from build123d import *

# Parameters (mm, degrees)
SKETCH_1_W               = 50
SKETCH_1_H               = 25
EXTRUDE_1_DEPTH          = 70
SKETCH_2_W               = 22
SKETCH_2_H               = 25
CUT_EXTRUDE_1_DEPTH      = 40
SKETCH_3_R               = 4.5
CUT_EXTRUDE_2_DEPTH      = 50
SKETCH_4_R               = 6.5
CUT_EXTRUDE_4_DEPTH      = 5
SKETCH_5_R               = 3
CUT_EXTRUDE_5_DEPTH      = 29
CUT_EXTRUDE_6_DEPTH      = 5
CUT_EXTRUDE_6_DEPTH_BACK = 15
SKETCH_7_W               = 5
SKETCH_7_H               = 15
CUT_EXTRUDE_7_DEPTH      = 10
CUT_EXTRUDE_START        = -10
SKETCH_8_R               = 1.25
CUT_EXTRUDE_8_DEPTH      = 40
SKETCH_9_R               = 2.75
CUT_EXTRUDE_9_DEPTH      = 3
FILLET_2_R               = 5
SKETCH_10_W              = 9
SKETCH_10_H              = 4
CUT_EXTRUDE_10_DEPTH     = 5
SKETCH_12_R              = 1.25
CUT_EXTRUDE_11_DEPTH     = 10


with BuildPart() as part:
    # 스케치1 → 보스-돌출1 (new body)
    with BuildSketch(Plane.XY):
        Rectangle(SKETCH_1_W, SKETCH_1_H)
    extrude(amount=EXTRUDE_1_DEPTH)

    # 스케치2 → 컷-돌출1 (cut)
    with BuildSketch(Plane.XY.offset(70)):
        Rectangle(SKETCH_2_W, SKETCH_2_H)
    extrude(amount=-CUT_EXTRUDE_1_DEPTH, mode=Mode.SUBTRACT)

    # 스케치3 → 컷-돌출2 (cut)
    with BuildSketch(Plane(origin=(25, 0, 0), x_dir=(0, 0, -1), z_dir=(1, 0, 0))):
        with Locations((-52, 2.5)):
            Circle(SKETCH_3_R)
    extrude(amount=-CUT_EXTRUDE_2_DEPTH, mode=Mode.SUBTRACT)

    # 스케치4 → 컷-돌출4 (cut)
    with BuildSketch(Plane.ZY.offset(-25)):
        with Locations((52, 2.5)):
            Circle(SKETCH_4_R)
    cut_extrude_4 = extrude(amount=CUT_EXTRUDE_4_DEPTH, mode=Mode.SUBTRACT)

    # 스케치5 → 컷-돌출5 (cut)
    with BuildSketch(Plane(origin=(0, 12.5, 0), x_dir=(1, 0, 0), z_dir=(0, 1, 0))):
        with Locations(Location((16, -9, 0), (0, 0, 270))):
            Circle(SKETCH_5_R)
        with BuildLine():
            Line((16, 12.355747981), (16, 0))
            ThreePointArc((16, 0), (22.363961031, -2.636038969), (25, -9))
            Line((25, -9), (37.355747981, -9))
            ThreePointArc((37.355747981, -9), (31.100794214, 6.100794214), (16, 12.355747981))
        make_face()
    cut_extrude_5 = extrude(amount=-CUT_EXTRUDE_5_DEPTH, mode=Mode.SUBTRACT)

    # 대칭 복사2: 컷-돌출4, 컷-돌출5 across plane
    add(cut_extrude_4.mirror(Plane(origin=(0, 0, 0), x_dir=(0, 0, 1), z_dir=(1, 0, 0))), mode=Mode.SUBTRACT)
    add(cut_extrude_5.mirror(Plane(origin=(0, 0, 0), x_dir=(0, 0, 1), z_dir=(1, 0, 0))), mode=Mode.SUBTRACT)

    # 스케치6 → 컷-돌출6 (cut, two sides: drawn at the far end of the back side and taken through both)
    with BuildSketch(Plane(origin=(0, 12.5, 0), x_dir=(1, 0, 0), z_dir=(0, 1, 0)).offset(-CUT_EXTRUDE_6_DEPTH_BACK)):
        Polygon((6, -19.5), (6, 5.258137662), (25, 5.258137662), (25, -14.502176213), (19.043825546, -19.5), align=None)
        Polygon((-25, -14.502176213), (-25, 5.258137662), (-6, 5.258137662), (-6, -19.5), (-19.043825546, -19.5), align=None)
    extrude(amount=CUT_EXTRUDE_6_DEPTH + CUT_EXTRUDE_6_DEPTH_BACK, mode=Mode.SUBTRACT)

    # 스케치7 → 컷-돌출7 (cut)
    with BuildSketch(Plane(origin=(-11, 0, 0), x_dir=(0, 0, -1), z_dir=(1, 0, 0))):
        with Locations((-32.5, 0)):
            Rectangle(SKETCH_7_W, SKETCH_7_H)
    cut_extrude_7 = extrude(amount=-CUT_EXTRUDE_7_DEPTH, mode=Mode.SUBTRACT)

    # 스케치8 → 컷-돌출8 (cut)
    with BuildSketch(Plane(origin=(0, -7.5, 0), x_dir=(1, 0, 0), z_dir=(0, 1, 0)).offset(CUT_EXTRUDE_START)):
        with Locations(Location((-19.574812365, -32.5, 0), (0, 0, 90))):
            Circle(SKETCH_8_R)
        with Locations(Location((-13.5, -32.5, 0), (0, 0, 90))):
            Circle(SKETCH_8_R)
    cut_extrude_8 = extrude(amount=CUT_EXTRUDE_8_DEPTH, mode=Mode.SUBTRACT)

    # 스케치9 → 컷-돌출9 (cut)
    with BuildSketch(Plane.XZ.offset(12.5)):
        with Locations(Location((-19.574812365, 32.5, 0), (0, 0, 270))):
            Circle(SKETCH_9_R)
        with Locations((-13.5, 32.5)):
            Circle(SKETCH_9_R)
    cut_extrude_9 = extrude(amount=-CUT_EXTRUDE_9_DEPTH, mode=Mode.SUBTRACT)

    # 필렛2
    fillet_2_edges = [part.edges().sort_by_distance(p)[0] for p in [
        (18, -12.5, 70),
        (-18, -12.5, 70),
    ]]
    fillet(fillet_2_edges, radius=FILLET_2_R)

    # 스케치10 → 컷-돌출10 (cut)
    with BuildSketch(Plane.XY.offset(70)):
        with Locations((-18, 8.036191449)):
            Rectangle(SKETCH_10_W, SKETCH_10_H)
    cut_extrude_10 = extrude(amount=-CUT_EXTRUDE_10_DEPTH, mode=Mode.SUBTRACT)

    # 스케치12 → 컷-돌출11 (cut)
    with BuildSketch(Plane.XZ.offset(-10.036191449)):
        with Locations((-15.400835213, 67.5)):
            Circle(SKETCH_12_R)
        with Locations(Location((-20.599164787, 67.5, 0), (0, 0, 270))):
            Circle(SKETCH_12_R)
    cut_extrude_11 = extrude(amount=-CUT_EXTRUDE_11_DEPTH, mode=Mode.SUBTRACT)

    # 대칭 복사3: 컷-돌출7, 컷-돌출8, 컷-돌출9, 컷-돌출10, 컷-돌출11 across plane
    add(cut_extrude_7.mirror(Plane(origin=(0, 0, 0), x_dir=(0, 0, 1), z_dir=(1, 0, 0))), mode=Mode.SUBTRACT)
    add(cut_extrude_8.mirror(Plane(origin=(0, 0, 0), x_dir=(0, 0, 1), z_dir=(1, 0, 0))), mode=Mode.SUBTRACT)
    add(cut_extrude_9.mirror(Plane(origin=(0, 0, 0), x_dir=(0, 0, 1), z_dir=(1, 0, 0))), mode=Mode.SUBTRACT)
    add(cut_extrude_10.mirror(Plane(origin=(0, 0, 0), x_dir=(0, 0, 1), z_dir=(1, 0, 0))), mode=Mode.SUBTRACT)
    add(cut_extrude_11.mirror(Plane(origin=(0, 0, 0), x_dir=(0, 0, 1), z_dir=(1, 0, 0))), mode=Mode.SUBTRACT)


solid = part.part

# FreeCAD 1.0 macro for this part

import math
import FreeCAD as App
import Part
import Sketcher
Q = App.Units.Quantity


def edges_at(feature, points):
    """Names of the edges that pass closest to the given points."""
    edges = feature.Shape.Edges
    near = lambda p: min(range(len(edges)), key=lambda i: edges[i].distToShape(Part.Vertex(*p))[0])
    return sorted({f"Edge{near(p) + 1}" for p in points})


def add_polygon(sketch, points):
    """Adds a closed chain of lines whose ends are joined by coincident constraints."""
    first, n = sketch.GeometryCount, len(points)
    for a, b in zip(points, points[1:] + points[:1]):
        sketch.addGeometry(Part.LineSegment(App.Vector(*a, 0), App.Vector(*b, 0)), False)
    for i in range(n):
        sketch.addConstraint(Sketcher.Constraint("Coincident", first + i, 2, first + (i + 1) % n, 1))

doc = App.newDocument("Part")
body = doc.addObject("PartDesign::Body", "Body")

# Sketch on XY plane
sketch1 = body.newObject("Sketcher::SketchObject", "Sketch")
sketch1.AttachmentSupport = (doc.getObject("XY_Plane"), [""])
sketch1.MapMode = "FlatFace"
add_polygon(sketch1, [(-25, 12), (-25, -12), (25, -12), (25, 12)])  # lines 0-3
sketch1.addConstraint([
    Sketcher.Constraint("Vertical", 0),
    Sketcher.Constraint("Horizontal", 1),
    Sketcher.Constraint("Vertical", 2),
    Sketcher.Constraint("Horizontal", 3),
    Sketcher.Constraint("Symmetric", 0, 2, 2, 2, -1, 1),
    Sketcher.Constraint("DistanceX", 1, 1, 1, 2, Q("50 mm")),
    Sketcher.Constraint("DistanceY", 0, 2, 0, 1, Q("25 mm")),
])
pad1 = body.newObject("PartDesign::Pad", "Pad")
pad1.Profile = sketch1
pad1.Length = 70

# Sketch on XY plane
sketch2 = body.newObject("Sketcher::SketchObject", "Sketch001")
sketch2.AttachmentSupport = (doc.getObject("XY_Plane"), [""])
sketch2.MapMode = "FlatFace"
sketch2.AttachmentOffset = App.Placement(App.Vector(0, 0, 70), App.Rotation())
add_polygon(sketch2, [(-11, 12), (-11, -12), (11, -12), (11, 12)])  # lines 0-3
sketch2.addConstraint([
    Sketcher.Constraint("Vertical", 0),
    Sketcher.Constraint("Horizontal", 1),
    Sketcher.Constraint("Vertical", 2),
    Sketcher.Constraint("Horizontal", 3),
    Sketcher.Constraint("Symmetric", 0, 2, 2, 2, -1, 1),
    Sketcher.Constraint("DistanceX", 1, 1, 1, 2, Q("22 mm")),
    Sketcher.Constraint("DistanceY", 0, 2, 0, 1, Q("25 mm")),
])
pocket1 = body.newObject("PartDesign::Pocket", "Pocket")
pocket1.Profile = sketch2
pocket1.Length = 40

# Sketch on YZ plane
sketch3 = body.newObject("Sketcher::SketchObject", "Sketch002")
sketch3.AttachmentSupport = (doc.getObject("YZ_Plane"), [""])
sketch3.MapMode = "FlatFace"
sketch3.AttachmentOffset = App.Placement(App.Vector(0, 0, 25), App.Rotation())
sketch3.addGeometry(Part.Circle(App.Vector(2.5, 52, 0), App.Vector(0, 0, 1), 4.5), False)
sketch3.addConstraint([
    Sketcher.Constraint("Diameter", 0, Q("9 mm")),
    Sketcher.Constraint("DistanceY", -1, 1, 0, 3, Q("52 mm")),
    Sketcher.Constraint("DistanceX", -1, 1, 0, 3, Q("2.5 mm")),
])
pocket2 = body.newObject("PartDesign::Pocket", "Pocket001")
pocket2.Profile = sketch3
pocket2.Length = 50

# Sketch on YZ plane
sketch4 = body.newObject("Sketcher::SketchObject", "Sketch003")
sketch4.AttachmentSupport = (doc.getObject("YZ_Plane"), [""])
sketch4.MapMode = "FlatFace"
sketch4.AttachmentOffset = App.Placement(App.Vector(0, 0, 25), App.Rotation())
sketch4.addGeometry(Part.Circle(App.Vector(2, 52, 0), App.Vector(0, 0, 1), 6), False)
sketch4.addConstraint([
    Sketcher.Constraint("Diameter", 0, Q("13 mm")),
    Sketcher.Constraint("DistanceY", -1, 1, 0, 3, Q("52 mm")),
    Sketcher.Constraint("DistanceX", -1, 1, 0, 3, Q("2.5 mm")),
])
pocket3 = body.newObject("PartDesign::Pocket", "Pocket002")
pocket3.Profile = sketch4
pocket3.Length = 5

# Sketch on XZ plane
sketch5 = body.newObject("Sketcher::SketchObject", "Sketch004")
sketch5.AttachmentSupport = (doc.getObject("XZ_Plane"), [""])
sketch5.MapMode = "FlatFace"
sketch5.AttachmentOffset = App.Placement(App.Vector(0, 0, -12.5), App.Rotation())
sketch5.addGeometry([
    Part.Circle(App.Vector(16, 9, 0), App.Vector(0, 0, 1), 3),  # 0
    Part.LineSegment(App.Vector(16, -12.4, 0), App.Vector(16, 0, 0)),  # 1
    Part.ArcOfCircle(Part.Circle(App.Vector(16, 9, 0), App.Vector(0, 0, 1), 9), math.radians(-90), math.radians(0)),  # 2
    Part.LineSegment(App.Vector(25, 9, 0), App.Vector(37.4, 9, 0)),  # 3
    Part.ArcOfCircle(Part.Circle(App.Vector(16, 9, 0), App.Vector(0, 0, 1), 21.4), math.radians(-90), math.radians(0)),  # 4
], False)
sketch5.addConstraint([
    Sketcher.Constraint("Coincident", 1, 2, 2, 1),
    Sketcher.Constraint("Coincident", 2, 2, 3, 1),
    Sketcher.Constraint("Coincident", 3, 2, 4, 2),
    Sketcher.Constraint("Coincident", 4, 1, 1, 1),
    Sketcher.Constraint("Vertical", 1),
    Sketcher.Constraint("Horizontal", 3),
    Sketcher.Constraint("Coincident", 2, 3, 0, 3),
    Sketcher.Constraint("Coincident", 4, 3, 0, 3),
    Sketcher.Constraint("PointOnObject", 1, 2, -1),
    Sketcher.Constraint("Horizontal", 4, 3, 2, 2),
    Sketcher.Constraint("Vertical", 4, 3, 1, 2),
    Sketcher.Constraint("Diameter", 0, Q("6 mm")),
    Sketcher.Constraint("Radius", 2, Q("9 mm")),
    Sketcher.Constraint("DistanceX", -1, 1, 0, 3, Q("16 mm")),
    Sketcher.Constraint("Radius", 4, Q("21.355748 mm")),
])
pocket4 = body.newObject("PartDesign::Pocket", "Pocket003")
pocket4.Profile = sketch5
pocket4.Length = 29
pocket4.Reversed = True
doc.recompute()

mirrored = body.newObject("PartDesign::Mirrored", "Mirrored")
mirrored.Originals = [pocket3, pocket4]
mirrored.MirrorPlane = (doc.getObject("YZ_Plane"), [""])
body.Tip = mirrored

# Sketch on XZ plane
sketch6 = body.newObject("Sketcher::SketchObject", "Sketch005")
sketch6.AttachmentSupport = (doc.getObject("XZ_Plane"), [""])
sketch6.MapMode = "FlatFace"
sketch6.AttachmentOffset = App.Placement(App.Vector(0, 0, -12.5), App.Rotation())
add_polygon(sketch6, [(6, -5), (6, 20), (19, 20), (25, 15), (25, -5)])  # lines 0-4
add_polygon(sketch6, [(-25, -5), (-25, 15), (-19, 20), (-6, 20), (-6, -5)])  # lines 5-9
sketch6.addConstraint([
    Sketcher.Constraint("Vertical", 0),
    Sketcher.Constraint("Horizontal", 1),
    Sketcher.Constraint("Vertical", 3),
    Sketcher.Constraint("Horizontal", 4),
    Sketcher.Constraint("Vertical", 5),
    Sketcher.Constraint("Horizontal", 7),
    Sketcher.Constraint("Vertical", 8),
    Sketcher.Constraint("Horizontal", 9),
    Sketcher.Constraint("Symmetric", 2, 2, 5, 2, -2),
    Sketcher.Constraint("Symmetric", 1, 2, 6, 2, -2),
    Sketcher.Constraint("Symmetric", 4, 2, 8, 2, -2),
    Sketcher.Constraint("DistanceX", 4, 2, 4, 1, Q("19 mm")),
    Sketcher.Constraint("Angle", 2, Q("-40 deg")),
    Sketcher.Constraint("DistanceX", -1, 1, 0, 2, Q("6 mm")),
    Sketcher.Constraint("DistanceY", -1, 1, 0, 2, Q("19.5 mm")),
    Sketcher.Constraint("DistanceX", 1, 1, 1, 2, Q("13.043826 mm")),
    Sketcher.Constraint("DistanceY", 0, 1, 0, 2, Q("24.758138 mm")),
])
pocket5 = body.newObject("PartDesign::Pocket", "Pocket004")
pocket5.Profile = sketch6
pocket5.Type = "TwoLengths"
pocket5.Length = 5
pocket5.Length2 = 15

# Sketch on YZ plane
sketch7 = body.newObject("Sketcher::SketchObject", "Sketch006")
sketch7.AttachmentSupport = (doc.getObject("YZ_Plane"), [""])
sketch7.MapMode = "FlatFace"
sketch7.AttachmentOffset = App.Placement(App.Vector(0, 0, -11), App.Rotation())
add_polygon(sketch7, [(8, 35), (-8, 35), (-8, 30), (8, 30)])  # lines 0-3
sketch7.addConstraint([
    Sketcher.Constraint("Horizontal", 0),
    Sketcher.Constraint("Vertical", 1),
    Sketcher.Constraint("Horizontal", 2),
    Sketcher.Constraint("Vertical", 3),
    Sketcher.Constraint("DistanceX", 0, 2, 0, 1, Q("15 mm")),
    Sketcher.Constraint("DistanceY", 1, 2, 1, 1, Q("5 mm")),
    Sketcher.Constraint("DistanceY", -1, 1, 0, 2, Q("35 mm")),
    Sketcher.Constraint("DistanceX", 0, 2, -1, 1, Q("7.5 mm")),
])
pocket6 = body.newObject("PartDesign::Pocket", "Pocket005")
pocket6.Profile = sketch7
pocket6.Length = 10

# Sketch on XZ plane
sketch8 = body.newObject("Sketcher::SketchObject", "Sketch007")
sketch8.AttachmentSupport = (doc.getObject("XZ_Plane"), [""])
sketch8.MapMode = "FlatFace"
sketch8.AttachmentOffset = App.Placement(App.Vector(0, 0, 17.5), App.Rotation())
sketch8.addGeometry([
    Part.Circle(App.Vector(-19.6, 32.5, 0), App.Vector(0, 0, 1), 1.2),
    Part.Circle(App.Vector(-13.5, 32.5, 0), App.Vector(0, 0, 1), 1.2),
], False)
sketch8.addConstraint([
    Sketcher.Constraint("Equal", 0, 1),
    Sketcher.Constraint("Horizontal", 0, 3, 1, 3),
    Sketcher.Constraint("Diameter", 0, Q("2.5 mm")),
    Sketcher.Constraint("DistanceY", -1, 1, 0, 3, Q("32.5 mm")),
    Sketcher.Constraint("DistanceX", 1, 3, -1, 1, Q("13.5 mm")),
    Sketcher.Constraint("DistanceX", 0, 3, -1, 1, Q("19.574812 mm")),
])
pocket7 = body.newObject("PartDesign::Pocket", "Pocket006")
pocket7.Profile = sketch8
pocket7.Length = 40

# Sketch on XZ plane
sketch9 = body.newObject("Sketcher::SketchObject", "Sketch008")
sketch9.AttachmentSupport = (doc.getObject("XZ_Plane"), [""])
sketch9.MapMode = "FlatFace"
sketch9.AttachmentOffset = App.Placement(App.Vector(0, 0, 12.5), App.Rotation())
sketch9.addGeometry([
    Part.Circle(App.Vector(-19.6, 32.5, 0), App.Vector(0, 0, 1), 2.8),
    Part.Circle(App.Vector(-13.5, 32.5, 0), App.Vector(0, 0, 1), 2.8),
], False)
sketch9.addConstraint([
    Sketcher.Constraint("Equal", 0, 1),
    Sketcher.Constraint("Horizontal", 0, 3, 1, 3),
    Sketcher.Constraint("Diameter", 0, Q("5.5 mm")),
    Sketcher.Constraint("DistanceY", -1, 1, 0, 3, Q("32.5 mm")),
    Sketcher.Constraint("DistanceX", 1, 3, -1, 1, Q("13.5 mm")),
    Sketcher.Constraint("DistanceX", 0, 3, -1, 1, Q("19.574812 mm")),
])
pocket8 = body.newObject("PartDesign::Pocket", "Pocket007")
pocket8.Profile = sketch9
pocket8.Length = 3
doc.recompute()

fillet = body.newObject("PartDesign::Fillet", "Fillet")
fillet.Base = (pocket8, edges_at(pocket8, [(18, -12.5, 70), (-18, -12.5, 70)]))
fillet.Radius = 5

# Sketch on XY plane
sketch10 = body.newObject("Sketcher::SketchObject", "Sketch009")
sketch10.AttachmentSupport = (doc.getObject("XY_Plane"), [""])
sketch10.MapMode = "FlatFace"
sketch10.AttachmentOffset = App.Placement(App.Vector(0, 0, 70), App.Rotation())
add_polygon(sketch10, [(-22.5, 10), (-22.5, 6), (-13.5, 6), (-13.5, 10)])  # lines 0-3
sketch10.addConstraint([
    Sketcher.Constraint("Vertical", 0),
    Sketcher.Constraint("Horizontal", 1),
    Sketcher.Constraint("Vertical", 2),
    Sketcher.Constraint("Horizontal", 3),
    Sketcher.Constraint("DistanceX", 1, 1, 1, 2, Q("9 mm")),
    Sketcher.Constraint("DistanceY", 0, 2, 0, 1, Q("4 mm")),
    Sketcher.Constraint("DistanceX", 0, 2, -1, 1, Q("22.5 mm")),
    Sketcher.Constraint("DistanceY", -1, 1, 0, 2, Q("6.036191 mm")),
])
pocket9 = body.newObject("PartDesign::Pocket", "Pocket008")
pocket9.Profile = sketch10
pocket9.Length = 5

# Sketch on XZ plane
sketch11 = body.newObject("Sketcher::SketchObject", "Sketch010")
sketch11.AttachmentSupport = (doc.getObject("XZ_Plane"), [""])
sketch11.MapMode = "FlatFace"
sketch11.AttachmentOffset = App.Placement(App.Vector(0, 0, -10.036191), App.Rotation())
sketch11.addGeometry([
    Part.Circle(App.Vector(-15.4, 67.5, 0), App.Vector(0, 0, 1), 1.2),
    Part.Circle(App.Vector(-20.6, 67.5, 0), App.Vector(0, 0, 1), 1.2),
], False)
sketch11.addConstraint([
    Sketcher.Constraint("Equal", 0, 1),
    Sketcher.Constraint("Horizontal", 0, 3, 1, 3),
    Sketcher.Constraint("Diameter", 0, Q("2.5 mm")),
    Sketcher.Constraint("DistanceY", -1, 1, 0, 3, Q("67.5 mm")),
    Sketcher.Constraint("DistanceX", 1, 3, 0, 3, Q("5.19833 mm")),
    Sketcher.Constraint("DistanceX", 0, 3, -1, 1, Q("15.400835 mm")),
])
pocket10 = body.newObject("PartDesign::Pocket", "Pocket009")
pocket10.Profile = sketch11
pocket10.Length = 10
doc.recompute()

mirrored2 = body.newObject("PartDesign::Mirrored", "Mirrored001")
mirrored2.Originals = [pocket6, pocket7, pocket8, pocket9, pocket10]
mirrored2.MirrorPlane = (doc.getObject("YZ_Plane"), [""])
body.Tip = mirrored2

doc.recompute()
